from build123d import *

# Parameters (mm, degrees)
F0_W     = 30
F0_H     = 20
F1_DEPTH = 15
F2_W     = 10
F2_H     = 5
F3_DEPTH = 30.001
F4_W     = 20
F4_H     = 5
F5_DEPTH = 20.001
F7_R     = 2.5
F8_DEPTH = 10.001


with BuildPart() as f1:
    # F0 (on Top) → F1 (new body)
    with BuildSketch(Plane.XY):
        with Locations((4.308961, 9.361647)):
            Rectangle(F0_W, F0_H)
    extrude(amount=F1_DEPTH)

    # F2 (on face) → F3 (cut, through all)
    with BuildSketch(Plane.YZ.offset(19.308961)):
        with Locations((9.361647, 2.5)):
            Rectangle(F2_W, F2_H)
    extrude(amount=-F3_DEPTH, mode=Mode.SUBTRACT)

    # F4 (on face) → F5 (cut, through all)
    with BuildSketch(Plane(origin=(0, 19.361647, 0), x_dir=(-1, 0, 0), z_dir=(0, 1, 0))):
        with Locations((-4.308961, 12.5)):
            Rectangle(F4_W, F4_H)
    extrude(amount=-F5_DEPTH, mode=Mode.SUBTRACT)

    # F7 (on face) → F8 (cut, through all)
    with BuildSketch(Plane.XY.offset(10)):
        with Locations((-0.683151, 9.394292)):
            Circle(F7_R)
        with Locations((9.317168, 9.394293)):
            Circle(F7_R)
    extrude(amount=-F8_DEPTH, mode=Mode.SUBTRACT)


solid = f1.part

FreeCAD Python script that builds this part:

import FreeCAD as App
import Part
import Sketcher

V = App.Vector
Q = App.Units.Quantity


def add_polygon(sketch, points):
    """Adds a closed chain of lines whose ends are joined by coincident constraints."""
    first, n = sketch.GeometryCount, len(points)
    for a, b in zip(points, points[1:] + points[:1]):
        sketch.addGeometry(Part.LineSegment(App.Vector(*a, 0), App.Vector(*b, 0)), False)
    for i in range(n):
        sketch.addConstraint(Sketcher.Constraint("Coincident", first + i, 2, first + (i + 1) % n, 1))

doc = App.newDocument("Part")
body = doc.addObject("PartDesign::Body", "Body")

sketch1 = body.newObject("Sketcher::SketchObject", "Sketch")
sketch1.AttachmentSupport = (doc.getObject("XY_Plane"), [""])
sketch1.MapMode = "FlatFace"
add_polygon(sketch1, [(-11, 19), (-11, -1), (19, -1), (19, 19)])
sketch1.addConstraint(Sketcher.Constraint("Vertical", 0))
sketch1.addConstraint(Sketcher.Constraint("Horizontal", 1))
sketch1.addConstraint(Sketcher.Constraint("Vertical", 2))
sketch1.addConstraint(Sketcher.Constraint("Horizontal", 3))
sketch1.addConstraint(Sketcher.Constraint("DistanceX", 1, 1, 1, 2, Q("30 mm")))
sketch1.addConstraint(Sketcher.Constraint("DistanceY", 0, 2, 0, 1, Q("20 mm")))
sketch1.addConstraint(Sketcher.Constraint("DistanceX", 0, 2, -1, 1, Q("10.691039 mm")))
sketch1.addConstraint(Sketcher.Constraint("DistanceY", 0, 2, -1, 1, Q("0.638353 mm")))
pad1 = body.newObject("PartDesign::Pad", "Pad")
pad1.Profile = sketch1
pad1.Length = 15

sketch2 = body.newObject("Sketcher::SketchObject", "Sketch001")
sketch2.AttachmentSupport = (doc.getObject("YZ_Plane"), [""])
sketch2.MapMode = "FlatFace"
sketch2.AttachmentOffset = App.Placement(V(0, 0, 19.308961), App.Rotation())
add_polygon(sketch2, [(4, 5), (4, 0), (14, 0), (14, 5)])
sketch2.addConstraint(Sketcher.Constraint("Vertical", 0))
sketch2.addConstraint(Sketcher.Constraint("Horizontal", 1))
sketch2.addConstraint(Sketcher.Constraint("Vertical", 2))
sketch2.addConstraint(Sketcher.Constraint("Horizontal", 3))
sketch2.addConstraint(Sketcher.Constraint("PointOnObject", 0, 2, -1))
sketch2.addConstraint(Sketcher.Constraint("DistanceX", 1, 1, 1, 2, Q("10 mm")))
sketch2.addConstraint(Sketcher.Constraint("DistanceY", 0, 2, 0, 1, Q("5 mm")))
sketch2.addConstraint(Sketcher.Constraint("DistanceX", -1, 1, 0, 2, Q("4.361647 mm")))
pocket1 = body.newObject("PartDesign::Pocket", "Pocket")
pocket1.Profile = sketch2
pocket1.Type = "ThroughAll"

sketch3 = body.newObject("Sketcher::SketchObject", "Sketch002")
sketch3.AttachmentSupport = (doc.getObject("XZ_Plane"), [""])
sketch3.MapMode = "FlatFace"
sketch3.AttachmentOffset = App.Placement(V(0, 0, -19.361647), App.Rotation())
add_polygon(sketch3, [(14, 15), (14, 10), (-6, 10), (-6, 15)])
sketch3.addConstraint(Sketcher.Constraint("Vertical", 0))
sketch3.addConstraint(Sketcher.Constraint("Horizontal", 1))
sketch3.addConstraint(Sketcher.Constraint("Vertical", 2))
sketch3.addConstraint(Sketcher.Constraint("Horizontal", 3))
sketch3.addConstraint(Sketcher.Constraint("DistanceX", 1, 2, 1, 1, Q("20 mm")))
sketch3.addConstraint(Sketcher.Constraint("DistanceY", 0, 2, 0, 1, Q("5 mm")))
sketch3.addConstraint(Sketcher.Constraint("DistanceY", -1, 1, 0, 2, Q("10 mm")))
sketch3.addConstraint(Sketcher.Constraint("DistanceX", -1, 1, 0, 2, Q("14.308961 mm")))
pocket2 = body.newObject("PartDesign::Pocket", "Pocket001")
pocket2.Profile = sketch3
pocket2.Type = "ThroughAll"
pocket2.Reversed = True

sketch4 = body.newObject("Sketcher::SketchObject", "Sketch003")
sketch4.AttachmentSupport = (doc.getObject("XY_Plane"), [""])
sketch4.MapMode = "FlatFace"
sketch4.AttachmentOffset = App.Placement(V(0, 0, 10), App.Rotation())
sketch4.addGeometry(Part.Circle(V(-0.7, 9.4, 0), V(0, 0, 1), 2.5), False)
sketch4.addGeometry(Part.Circle(V(9.3, 9.4, 0), V(0, 0, 1), 2.5), False)
sketch4.addConstraint(Sketcher.Constraint("Equal", 0, 1))
sketch4.addConstraint(Sketcher.Constraint("Horizontal", 0, 3, 1, 3))
sketch4.addConstraint(Sketcher.Constraint("Diameter", 0, Q("5 mm")))
sketch4.addConstraint(Sketcher.Constraint("DistanceX", 0, 3, -1, 1, Q("0.683151 mm")))
sketch4.addConstraint(Sketcher.Constraint("DistanceX", 0, 3, 1, 3, Q("10.000319 mm")))
sketch4.addConstraint(Sketcher.Constraint("DistanceY", -1, 1, 0, 3, Q("9.394292 mm")))
pocket3 = body.newObject("PartDesign::Pocket", "Pocket002")
pocket3.Profile = sketch4
pocket3.Type = "ThroughAll"

doc.recompute()
